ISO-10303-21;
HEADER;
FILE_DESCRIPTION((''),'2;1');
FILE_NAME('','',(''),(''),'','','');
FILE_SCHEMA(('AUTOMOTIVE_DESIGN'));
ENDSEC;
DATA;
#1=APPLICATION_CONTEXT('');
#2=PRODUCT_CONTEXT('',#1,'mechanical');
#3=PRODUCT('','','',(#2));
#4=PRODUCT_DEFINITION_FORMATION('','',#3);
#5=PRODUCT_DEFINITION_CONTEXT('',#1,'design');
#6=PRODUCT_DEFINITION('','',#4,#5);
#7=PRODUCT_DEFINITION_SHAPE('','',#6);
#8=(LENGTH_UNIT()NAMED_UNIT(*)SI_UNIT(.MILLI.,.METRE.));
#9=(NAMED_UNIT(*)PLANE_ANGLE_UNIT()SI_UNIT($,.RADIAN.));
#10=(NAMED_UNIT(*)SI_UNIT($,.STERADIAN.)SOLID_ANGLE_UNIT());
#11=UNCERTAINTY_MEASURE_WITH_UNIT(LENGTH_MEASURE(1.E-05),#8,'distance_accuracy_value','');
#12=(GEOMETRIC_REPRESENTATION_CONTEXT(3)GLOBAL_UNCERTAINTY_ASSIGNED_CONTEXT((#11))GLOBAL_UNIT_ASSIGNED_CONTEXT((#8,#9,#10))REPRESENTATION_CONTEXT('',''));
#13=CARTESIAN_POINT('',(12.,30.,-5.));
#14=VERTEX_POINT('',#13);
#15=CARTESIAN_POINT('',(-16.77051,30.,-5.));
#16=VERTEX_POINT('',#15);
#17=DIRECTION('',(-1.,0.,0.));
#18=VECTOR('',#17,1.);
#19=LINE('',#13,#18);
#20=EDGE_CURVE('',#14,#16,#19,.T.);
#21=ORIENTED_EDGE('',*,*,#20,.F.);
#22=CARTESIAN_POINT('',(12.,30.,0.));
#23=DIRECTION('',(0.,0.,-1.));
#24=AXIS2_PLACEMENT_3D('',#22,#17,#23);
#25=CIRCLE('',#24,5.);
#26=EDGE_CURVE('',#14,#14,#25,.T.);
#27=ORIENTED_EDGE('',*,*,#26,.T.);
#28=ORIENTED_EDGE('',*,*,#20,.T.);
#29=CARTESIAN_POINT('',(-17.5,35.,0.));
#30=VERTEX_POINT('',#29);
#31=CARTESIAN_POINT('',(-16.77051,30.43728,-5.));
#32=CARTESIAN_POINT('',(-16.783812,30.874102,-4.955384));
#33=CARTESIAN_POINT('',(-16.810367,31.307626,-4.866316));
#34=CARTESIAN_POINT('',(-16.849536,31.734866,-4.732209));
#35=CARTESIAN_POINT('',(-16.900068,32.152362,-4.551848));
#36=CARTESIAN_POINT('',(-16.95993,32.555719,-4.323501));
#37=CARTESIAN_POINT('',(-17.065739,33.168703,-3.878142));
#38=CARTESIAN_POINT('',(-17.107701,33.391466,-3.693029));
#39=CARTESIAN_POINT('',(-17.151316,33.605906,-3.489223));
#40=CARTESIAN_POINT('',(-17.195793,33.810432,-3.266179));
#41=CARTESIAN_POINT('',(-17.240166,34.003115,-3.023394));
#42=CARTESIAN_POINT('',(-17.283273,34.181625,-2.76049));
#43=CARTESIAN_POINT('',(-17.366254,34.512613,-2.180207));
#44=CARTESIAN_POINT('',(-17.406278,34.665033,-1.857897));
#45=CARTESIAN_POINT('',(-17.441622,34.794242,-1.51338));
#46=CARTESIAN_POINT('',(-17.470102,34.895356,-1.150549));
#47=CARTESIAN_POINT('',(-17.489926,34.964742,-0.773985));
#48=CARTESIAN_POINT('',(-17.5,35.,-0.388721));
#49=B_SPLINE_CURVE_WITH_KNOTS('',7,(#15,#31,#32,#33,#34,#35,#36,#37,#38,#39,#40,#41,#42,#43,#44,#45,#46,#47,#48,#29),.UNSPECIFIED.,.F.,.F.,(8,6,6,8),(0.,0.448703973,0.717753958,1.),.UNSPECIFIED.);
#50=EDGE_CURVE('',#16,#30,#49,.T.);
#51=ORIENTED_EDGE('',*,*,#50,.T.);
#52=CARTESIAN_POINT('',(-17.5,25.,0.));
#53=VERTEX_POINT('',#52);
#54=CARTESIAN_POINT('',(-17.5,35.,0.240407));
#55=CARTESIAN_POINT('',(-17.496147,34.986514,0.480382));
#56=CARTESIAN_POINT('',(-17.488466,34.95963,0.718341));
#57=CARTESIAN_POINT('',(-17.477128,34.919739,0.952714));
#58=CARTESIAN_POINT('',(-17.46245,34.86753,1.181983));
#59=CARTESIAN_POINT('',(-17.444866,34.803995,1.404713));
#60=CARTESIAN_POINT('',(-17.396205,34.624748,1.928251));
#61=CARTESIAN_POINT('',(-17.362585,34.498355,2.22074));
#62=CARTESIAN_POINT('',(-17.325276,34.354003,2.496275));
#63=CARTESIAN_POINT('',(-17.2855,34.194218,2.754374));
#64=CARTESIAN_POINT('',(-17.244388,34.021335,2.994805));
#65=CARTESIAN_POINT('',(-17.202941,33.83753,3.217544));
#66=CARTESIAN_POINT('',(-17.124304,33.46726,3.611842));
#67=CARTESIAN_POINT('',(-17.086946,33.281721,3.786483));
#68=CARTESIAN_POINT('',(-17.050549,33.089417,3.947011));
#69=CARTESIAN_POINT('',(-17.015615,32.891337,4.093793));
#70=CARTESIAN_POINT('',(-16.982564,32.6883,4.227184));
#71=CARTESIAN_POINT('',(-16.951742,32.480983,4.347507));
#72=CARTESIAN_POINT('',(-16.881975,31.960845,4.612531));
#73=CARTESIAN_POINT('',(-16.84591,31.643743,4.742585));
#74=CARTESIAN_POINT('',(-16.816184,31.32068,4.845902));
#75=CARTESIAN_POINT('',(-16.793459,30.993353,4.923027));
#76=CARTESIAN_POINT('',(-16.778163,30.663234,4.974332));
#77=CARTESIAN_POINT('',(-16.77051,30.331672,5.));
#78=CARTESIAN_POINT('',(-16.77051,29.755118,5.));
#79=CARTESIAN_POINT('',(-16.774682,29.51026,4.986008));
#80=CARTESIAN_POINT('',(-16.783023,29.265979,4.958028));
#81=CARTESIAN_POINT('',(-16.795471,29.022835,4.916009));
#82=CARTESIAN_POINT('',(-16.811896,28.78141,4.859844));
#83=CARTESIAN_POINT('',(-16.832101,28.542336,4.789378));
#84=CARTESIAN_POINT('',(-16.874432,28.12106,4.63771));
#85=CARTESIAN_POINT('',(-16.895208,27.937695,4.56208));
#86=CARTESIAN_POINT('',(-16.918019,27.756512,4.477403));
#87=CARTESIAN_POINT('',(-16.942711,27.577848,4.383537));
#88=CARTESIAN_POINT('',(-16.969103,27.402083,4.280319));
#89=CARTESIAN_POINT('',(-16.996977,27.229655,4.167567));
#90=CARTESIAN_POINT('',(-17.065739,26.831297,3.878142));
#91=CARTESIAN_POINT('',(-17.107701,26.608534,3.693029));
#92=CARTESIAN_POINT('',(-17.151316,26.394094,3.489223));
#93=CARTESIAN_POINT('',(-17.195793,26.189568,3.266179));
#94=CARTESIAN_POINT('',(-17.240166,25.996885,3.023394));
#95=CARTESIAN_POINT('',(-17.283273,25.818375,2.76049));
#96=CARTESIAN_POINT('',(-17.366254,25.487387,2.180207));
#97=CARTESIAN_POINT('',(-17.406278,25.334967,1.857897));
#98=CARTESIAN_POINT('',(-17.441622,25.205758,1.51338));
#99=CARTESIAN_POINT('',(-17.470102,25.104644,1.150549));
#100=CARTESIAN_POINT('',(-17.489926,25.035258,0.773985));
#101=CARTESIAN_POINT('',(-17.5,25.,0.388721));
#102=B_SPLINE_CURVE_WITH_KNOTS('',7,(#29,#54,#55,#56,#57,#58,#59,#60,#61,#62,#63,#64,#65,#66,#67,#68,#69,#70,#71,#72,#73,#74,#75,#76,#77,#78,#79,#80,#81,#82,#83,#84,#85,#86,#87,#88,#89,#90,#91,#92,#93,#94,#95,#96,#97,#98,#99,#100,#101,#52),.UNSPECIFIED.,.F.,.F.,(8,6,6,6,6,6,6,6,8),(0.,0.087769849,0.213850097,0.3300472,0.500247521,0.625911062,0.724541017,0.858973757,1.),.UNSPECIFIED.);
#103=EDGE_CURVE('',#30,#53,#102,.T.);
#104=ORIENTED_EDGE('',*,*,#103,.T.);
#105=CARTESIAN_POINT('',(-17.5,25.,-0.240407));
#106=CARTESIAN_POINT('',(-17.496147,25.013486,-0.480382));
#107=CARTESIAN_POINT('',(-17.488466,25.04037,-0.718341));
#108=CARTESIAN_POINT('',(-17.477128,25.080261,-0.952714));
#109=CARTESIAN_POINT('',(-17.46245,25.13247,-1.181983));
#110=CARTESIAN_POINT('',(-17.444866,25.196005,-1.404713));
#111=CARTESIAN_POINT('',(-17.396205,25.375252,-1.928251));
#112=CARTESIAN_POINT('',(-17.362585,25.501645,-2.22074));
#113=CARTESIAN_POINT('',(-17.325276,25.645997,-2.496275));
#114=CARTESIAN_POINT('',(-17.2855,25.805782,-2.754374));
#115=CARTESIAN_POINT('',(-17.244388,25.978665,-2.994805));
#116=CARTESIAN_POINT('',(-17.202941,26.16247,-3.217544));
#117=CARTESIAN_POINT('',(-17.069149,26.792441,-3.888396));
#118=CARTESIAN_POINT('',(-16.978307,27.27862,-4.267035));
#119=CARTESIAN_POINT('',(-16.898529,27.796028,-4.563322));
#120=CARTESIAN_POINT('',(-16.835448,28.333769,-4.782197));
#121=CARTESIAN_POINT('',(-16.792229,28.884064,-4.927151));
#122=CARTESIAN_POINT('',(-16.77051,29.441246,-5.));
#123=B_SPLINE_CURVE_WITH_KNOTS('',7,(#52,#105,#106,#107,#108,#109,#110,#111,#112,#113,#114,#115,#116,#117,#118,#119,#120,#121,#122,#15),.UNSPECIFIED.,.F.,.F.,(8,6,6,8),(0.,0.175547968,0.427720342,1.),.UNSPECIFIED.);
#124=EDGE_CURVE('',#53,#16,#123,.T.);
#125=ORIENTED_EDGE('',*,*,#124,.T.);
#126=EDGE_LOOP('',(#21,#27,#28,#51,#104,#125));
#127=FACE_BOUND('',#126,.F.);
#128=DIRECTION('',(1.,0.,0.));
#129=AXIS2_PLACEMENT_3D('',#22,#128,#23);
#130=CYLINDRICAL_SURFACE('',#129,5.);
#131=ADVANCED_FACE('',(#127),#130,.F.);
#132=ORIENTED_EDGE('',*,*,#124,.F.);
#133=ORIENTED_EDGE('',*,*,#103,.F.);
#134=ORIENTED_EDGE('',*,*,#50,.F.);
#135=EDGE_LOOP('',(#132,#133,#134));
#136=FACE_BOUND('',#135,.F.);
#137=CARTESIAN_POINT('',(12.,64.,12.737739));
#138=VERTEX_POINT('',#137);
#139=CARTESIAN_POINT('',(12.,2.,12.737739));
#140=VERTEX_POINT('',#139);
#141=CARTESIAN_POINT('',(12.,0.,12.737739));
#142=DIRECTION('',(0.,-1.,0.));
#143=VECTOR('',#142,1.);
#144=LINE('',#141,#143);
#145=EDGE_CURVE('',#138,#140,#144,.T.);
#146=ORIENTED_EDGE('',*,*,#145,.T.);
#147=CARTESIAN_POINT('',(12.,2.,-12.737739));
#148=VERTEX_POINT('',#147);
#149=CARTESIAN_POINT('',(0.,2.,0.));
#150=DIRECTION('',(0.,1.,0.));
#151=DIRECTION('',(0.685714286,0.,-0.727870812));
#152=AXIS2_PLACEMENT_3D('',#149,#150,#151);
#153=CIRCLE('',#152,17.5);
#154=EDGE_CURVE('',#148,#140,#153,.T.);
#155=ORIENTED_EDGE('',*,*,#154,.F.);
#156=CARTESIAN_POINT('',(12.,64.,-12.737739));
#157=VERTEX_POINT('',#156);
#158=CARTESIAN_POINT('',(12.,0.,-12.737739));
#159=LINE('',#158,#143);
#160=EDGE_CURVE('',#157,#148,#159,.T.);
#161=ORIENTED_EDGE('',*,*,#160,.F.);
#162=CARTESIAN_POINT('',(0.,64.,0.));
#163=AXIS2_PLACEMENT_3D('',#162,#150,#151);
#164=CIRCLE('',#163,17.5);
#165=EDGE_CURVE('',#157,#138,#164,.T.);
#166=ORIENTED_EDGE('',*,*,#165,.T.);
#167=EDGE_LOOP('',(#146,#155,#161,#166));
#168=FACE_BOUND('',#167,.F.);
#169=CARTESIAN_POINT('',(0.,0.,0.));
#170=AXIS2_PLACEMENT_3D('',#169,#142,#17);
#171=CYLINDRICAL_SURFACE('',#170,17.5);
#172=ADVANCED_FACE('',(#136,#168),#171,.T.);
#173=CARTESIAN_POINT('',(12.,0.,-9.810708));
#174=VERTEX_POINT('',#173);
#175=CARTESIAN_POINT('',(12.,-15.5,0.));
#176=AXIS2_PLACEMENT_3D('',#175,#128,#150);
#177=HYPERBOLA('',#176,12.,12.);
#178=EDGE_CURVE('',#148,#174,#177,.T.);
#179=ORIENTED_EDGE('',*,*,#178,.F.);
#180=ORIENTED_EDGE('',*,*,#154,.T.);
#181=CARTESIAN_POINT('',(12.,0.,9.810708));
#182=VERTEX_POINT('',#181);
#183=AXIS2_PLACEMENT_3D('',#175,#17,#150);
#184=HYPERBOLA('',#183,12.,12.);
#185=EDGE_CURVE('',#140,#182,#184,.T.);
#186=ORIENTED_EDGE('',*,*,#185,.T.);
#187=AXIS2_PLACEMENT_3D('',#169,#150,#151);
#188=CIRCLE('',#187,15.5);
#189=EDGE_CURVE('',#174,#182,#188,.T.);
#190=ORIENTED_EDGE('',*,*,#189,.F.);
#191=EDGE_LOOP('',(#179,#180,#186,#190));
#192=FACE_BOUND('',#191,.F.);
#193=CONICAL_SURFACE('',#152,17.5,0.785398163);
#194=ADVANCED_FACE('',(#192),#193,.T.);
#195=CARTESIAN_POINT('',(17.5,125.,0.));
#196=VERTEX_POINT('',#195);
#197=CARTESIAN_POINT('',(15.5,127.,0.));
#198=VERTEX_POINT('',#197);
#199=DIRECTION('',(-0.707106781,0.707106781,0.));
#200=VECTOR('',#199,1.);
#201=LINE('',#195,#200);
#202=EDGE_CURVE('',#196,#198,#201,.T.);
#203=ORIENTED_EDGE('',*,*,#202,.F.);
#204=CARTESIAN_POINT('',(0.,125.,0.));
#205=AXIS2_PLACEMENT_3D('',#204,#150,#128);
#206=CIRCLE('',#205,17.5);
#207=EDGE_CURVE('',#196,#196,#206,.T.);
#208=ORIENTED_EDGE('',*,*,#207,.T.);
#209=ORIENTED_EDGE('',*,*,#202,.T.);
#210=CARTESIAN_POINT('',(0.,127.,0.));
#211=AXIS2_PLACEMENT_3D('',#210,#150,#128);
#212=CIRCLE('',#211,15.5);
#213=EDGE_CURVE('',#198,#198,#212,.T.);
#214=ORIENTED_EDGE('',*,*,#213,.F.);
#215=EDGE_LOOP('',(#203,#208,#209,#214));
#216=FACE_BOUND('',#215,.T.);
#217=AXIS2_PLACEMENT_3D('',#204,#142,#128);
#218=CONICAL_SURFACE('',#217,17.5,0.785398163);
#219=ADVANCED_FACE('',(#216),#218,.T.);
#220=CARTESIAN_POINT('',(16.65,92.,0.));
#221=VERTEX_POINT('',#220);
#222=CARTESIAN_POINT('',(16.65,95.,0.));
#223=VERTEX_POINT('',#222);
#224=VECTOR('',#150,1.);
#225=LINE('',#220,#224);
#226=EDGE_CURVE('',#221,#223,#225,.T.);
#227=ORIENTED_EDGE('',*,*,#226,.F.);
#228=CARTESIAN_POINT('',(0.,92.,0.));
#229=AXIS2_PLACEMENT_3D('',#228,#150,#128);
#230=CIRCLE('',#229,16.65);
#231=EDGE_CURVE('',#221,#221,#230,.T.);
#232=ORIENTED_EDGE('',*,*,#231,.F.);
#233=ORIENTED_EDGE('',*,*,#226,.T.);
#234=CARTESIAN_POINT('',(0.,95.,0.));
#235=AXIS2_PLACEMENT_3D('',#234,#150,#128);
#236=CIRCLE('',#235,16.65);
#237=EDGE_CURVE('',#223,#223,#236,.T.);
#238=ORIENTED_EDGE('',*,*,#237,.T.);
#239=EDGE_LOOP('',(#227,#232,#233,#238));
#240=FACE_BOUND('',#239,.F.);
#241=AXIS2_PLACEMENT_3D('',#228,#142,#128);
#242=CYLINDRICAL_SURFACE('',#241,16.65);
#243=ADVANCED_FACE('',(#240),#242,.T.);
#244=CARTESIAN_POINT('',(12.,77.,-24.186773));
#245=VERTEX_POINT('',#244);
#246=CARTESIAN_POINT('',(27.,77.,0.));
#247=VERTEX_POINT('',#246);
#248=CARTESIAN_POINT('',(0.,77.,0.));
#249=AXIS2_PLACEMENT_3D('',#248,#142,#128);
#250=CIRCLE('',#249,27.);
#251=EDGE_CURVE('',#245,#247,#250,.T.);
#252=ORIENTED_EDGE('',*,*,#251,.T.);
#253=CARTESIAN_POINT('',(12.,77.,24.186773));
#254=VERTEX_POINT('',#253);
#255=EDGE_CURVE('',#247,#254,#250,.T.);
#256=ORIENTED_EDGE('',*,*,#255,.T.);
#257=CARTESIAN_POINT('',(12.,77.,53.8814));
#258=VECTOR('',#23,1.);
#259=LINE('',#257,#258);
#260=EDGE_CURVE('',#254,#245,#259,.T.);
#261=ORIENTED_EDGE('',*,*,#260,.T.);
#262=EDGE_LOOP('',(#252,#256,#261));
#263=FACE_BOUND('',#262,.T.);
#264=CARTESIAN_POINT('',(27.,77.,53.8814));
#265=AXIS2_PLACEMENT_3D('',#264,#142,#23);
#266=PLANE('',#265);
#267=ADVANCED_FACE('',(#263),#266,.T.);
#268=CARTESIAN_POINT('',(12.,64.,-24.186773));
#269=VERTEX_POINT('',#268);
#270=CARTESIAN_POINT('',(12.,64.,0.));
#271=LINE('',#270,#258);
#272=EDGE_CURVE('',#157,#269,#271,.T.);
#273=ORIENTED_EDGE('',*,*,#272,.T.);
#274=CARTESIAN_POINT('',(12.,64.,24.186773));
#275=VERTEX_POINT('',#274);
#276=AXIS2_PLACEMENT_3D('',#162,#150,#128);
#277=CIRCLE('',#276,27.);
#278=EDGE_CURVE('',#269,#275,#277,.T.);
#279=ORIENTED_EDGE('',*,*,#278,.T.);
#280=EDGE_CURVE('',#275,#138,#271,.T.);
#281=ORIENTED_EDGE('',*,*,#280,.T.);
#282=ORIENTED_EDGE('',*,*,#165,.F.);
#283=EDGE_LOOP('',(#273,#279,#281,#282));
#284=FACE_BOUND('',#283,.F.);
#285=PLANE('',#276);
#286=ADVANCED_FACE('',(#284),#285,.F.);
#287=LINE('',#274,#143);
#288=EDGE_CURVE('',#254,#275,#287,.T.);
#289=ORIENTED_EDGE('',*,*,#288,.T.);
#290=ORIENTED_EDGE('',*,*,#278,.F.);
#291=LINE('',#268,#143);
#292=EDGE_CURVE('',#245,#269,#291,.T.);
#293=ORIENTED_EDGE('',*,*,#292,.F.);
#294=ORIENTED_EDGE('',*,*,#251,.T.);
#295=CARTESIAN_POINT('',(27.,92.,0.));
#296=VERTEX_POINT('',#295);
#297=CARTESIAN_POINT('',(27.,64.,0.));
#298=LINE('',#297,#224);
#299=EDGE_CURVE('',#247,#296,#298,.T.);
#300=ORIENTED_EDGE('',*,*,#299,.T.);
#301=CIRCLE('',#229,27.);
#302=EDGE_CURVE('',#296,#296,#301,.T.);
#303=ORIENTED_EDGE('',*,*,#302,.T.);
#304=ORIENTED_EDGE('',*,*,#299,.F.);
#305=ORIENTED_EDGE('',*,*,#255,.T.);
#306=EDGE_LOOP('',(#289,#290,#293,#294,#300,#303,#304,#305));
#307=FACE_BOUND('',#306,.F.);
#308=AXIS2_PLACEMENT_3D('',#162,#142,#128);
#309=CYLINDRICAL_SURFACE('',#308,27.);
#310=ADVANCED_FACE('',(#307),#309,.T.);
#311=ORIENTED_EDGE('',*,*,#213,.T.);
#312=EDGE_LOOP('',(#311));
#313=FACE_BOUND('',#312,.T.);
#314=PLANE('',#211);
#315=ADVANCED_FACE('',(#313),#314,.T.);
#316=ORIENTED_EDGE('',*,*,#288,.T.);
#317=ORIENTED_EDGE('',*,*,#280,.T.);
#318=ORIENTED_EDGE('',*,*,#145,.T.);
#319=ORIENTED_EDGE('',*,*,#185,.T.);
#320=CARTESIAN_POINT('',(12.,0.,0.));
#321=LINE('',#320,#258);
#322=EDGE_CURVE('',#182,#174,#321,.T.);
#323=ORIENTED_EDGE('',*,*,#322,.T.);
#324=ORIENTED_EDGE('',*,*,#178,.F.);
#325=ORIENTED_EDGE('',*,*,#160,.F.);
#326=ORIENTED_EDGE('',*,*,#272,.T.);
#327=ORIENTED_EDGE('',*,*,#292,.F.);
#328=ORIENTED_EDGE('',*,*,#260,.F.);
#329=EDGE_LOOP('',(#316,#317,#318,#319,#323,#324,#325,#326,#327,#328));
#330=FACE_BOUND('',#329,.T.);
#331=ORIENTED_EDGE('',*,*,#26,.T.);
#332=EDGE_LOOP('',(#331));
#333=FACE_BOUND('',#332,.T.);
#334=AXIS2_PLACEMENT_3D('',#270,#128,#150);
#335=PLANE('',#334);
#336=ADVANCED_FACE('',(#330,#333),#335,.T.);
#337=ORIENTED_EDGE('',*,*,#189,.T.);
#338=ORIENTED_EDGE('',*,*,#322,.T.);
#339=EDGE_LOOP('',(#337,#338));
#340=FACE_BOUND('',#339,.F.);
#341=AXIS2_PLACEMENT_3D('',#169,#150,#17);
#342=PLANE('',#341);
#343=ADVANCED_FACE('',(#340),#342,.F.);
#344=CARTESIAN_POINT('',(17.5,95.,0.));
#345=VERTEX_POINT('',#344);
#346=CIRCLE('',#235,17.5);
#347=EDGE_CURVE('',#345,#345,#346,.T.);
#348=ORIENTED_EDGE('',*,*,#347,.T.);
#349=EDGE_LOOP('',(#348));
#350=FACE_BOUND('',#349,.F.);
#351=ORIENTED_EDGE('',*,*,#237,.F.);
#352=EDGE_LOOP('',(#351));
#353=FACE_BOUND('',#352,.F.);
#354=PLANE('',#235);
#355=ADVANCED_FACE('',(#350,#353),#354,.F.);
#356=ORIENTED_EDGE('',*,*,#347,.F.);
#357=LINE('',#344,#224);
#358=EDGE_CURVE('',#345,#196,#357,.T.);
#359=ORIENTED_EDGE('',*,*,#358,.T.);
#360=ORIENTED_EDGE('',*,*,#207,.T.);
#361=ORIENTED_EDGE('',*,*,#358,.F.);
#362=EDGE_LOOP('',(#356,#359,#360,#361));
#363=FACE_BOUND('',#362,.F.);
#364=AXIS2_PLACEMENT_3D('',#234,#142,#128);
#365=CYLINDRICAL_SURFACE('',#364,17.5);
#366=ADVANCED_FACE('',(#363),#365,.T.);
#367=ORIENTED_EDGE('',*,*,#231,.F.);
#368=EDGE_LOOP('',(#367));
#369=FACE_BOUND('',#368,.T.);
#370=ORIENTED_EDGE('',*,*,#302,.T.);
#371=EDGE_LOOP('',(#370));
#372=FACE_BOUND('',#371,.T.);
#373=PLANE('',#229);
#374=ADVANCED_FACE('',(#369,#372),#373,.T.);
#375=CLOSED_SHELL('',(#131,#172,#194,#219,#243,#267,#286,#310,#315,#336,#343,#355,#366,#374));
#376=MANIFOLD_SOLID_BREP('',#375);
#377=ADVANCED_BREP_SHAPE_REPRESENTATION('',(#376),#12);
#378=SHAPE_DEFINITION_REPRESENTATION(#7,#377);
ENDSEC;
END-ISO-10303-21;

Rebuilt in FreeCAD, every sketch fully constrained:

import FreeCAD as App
import Part
import Sketcher
Q = App.Units.Quantity


def edges_at(feature, points):
    """Names of the edges that pass closest to the given points."""
    edges = feature.Shape.Edges
    near = lambda p: min(range(len(edges)), key=lambda i: edges[i].distToShape(Part.Vertex(*p))[0])
    return sorted({f"Edge{near(p) + 1}" for p in points})


def add_polygon(sketch, points):
    """Adds a closed chain of lines whose ends are joined by coincident constraints."""
    first, n = sketch.GeometryCount, len(points)
    for a, b in zip(points, points[1:] + points[:1]):
        sketch.addGeometry(Part.LineSegment(App.Vector(*a, 0), App.Vector(*b, 0)), False)
    for i in range(n):
        sketch.addConstraint(Sketcher.Constraint("Coincident", first + i, 2, first + (i + 1) % n, 1))

doc = App.newDocument("Part")
body = doc.addObject("PartDesign::Body", "Body")

# Sketch on XZ plane
sketch1 = doc.addObject("Sketcher::SketchObject", "Sketch")
body.addObject(sketch1)
sketch1.AttachmentSupport = (doc.XZ_Plane, [""])
sketch1.MapMode = "FlatFace"
sketch1.addGeometry(Part.Circle(App.Vector(0, 0, 0), App.Vector(0, 0, 1), 18), False)
sketch1.addConstraint(Sketcher.Constraint("Coincident", 0, 3, -1, 1))
sketch1.addConstraint(Sketcher.Constraint("Diameter", 0, Q("35 mm")))
pad1 = doc.addObject("PartDesign::Pad", "Pad")
body.addObject(pad1)
pad1.Profile = sketch1
pad1.Length = 64
pad1.Reversed = True

# Sketch on XZ plane
sketch2 = doc.addObject("Sketcher::SketchObject", "Sketch001")
body.addObject(sketch2)
sketch2.AttachmentSupport = (doc.XZ_Plane, [""])
sketch2.MapMode = "FlatFace"
sketch2.AttachmentOffset = App.Placement(App.Vector(0, 0, -64), App.Rotation())
sketch2.addGeometry(Part.Circle(App.Vector(0, 0, 0), App.Vector(0, 0, 1), 27), False)
sketch2.addConstraint(Sketcher.Constraint("Coincident", 0, 3, -1, 1))
sketch2.addConstraint(Sketcher.Constraint("Diameter", 0, Q("54 mm")))
pad2 = doc.addObject("PartDesign::Pad", "Pad001")
body.addObject(pad2)
pad2.Profile = sketch2
pad2.Length = 28
pad2.Reversed = True

# Sketch on XZ plane
sketch3 = doc.addObject("Sketcher::SketchObject", "Sketch002")
body.addObject(sketch3)
sketch3.AttachmentSupport = (doc.XZ_Plane, [""])
sketch3.MapMode = "FlatFace"
sketch3.AttachmentOffset = App.Placement(App.Vector(0, 0, -92), App.Rotation())
sketch3.addGeometry(Part.Circle(App.Vector(0, 0, 0), App.Vector(0, 0, 1), 17), False)
sketch3.addConstraint(Sketcher.Constraint("Coincident", 0, 3, -1, 1))
sketch3.addConstraint(Sketcher.Constraint("Diameter", 0, Q("33.3 mm")))
pad3 = doc.addObject("PartDesign::Pad", "Pad002")
body.addObject(pad3)
pad3.Profile = sketch3
pad3.Length = 3
pad3.Reversed = True

# Sketch on XZ plane
sketch4 = doc.addObject("Sketcher::SketchObject", "Sketch003")
body.addObject(sketch4)
sketch4.AttachmentSupport = (doc.XZ_Plane, [""])
sketch4.MapMode = "FlatFace"
sketch4.AttachmentOffset = App.Placement(App.Vector(0, 0, -95), App.Rotation())
sketch4.addGeometry(Part.Circle(App.Vector(0, 0, 0), App.Vector(0, 0, 1), 18), False)
sketch4.addConstraint(Sketcher.Constraint("Coincident", 0, 3, -1, 1))
sketch4.addConstraint(Sketcher.Constraint("Diameter", 0, Q("35 mm")))
pad4 = doc.addObject("PartDesign::Pad", "Pad003")
body.addObject(pad4)
pad4.Profile = sketch4
pad4.Length = 32
pad4.Reversed = True

# Sketch on YZ plane
sketch5 = doc.addObject("Sketcher::SketchObject", "Sketch004")
body.addObject(sketch5)
sketch5.AttachmentSupport = (doc.YZ_Plane, [""])
sketch5.MapMode = "FlatFace"
sketch5.AttachmentOffset = App.Placement(App.Vector(0, 0, 27), App.Rotation())
add_polygon(sketch5, [(-19, -51), (77, -51), (77, 54), (-19, 54)])  # lines 0-3
sketch5.addConstraint(Sketcher.Constraint("Horizontal", 0))
sketch5.addConstraint(Sketcher.Constraint("Vertical", 1))
sketch5.addConstraint(Sketcher.Constraint("Horizontal", 2))
sketch5.addConstraint(Sketcher.Constraint("Vertical", 3))
sketch5.addConstraint(Sketcher.Constraint("DistanceX", -1, 1, 0, 2, Q("77 mm")))
sketch5.addConstraint(Sketcher.Constraint("DistanceX", 0, 1, 0, 2, Q("95.5223 mm")))
sketch5.addConstraint(Sketcher.Constraint("DistanceY", 1, 1, 1, 2, Q("104.4972 mm")))
sketch5.addConstraint(Sketcher.Constraint("DistanceY", 0, 2, -1, 1, Q("50.6158 mm")))
pocket1 = doc.addObject("PartDesign::Pocket", "Pocket")
body.addObject(pocket1)
pocket1.Profile = sketch5
pocket1.Length = 15

# Sketch on YZ plane
sketch6 = doc.addObject("Sketcher::SketchObject", "Sketch005")
body.addObject(sketch6)
sketch6.AttachmentSupport = (doc.YZ_Plane, [""])
sketch6.MapMode = "FlatFace"
sketch6.AttachmentOffset = App.Placement(App.Vector(0, 0, 12), App.Rotation())
sketch6.addGeometry(Part.Circle(App.Vector(30, 0, 0), App.Vector(0, 0, 1), 5), False)
sketch6.addConstraint(Sketcher.Constraint("PointOnObject", 0, 3, -1))
sketch6.addConstraint(Sketcher.Constraint("Diameter", 0, Q("10 mm")))
sketch6.addConstraint(Sketcher.Constraint("DistanceX", -1, 1, 0, 3, Q("30 mm")))
pocket2 = doc.addObject("PartDesign::Pocket", "Pocket001")
body.addObject(pocket2)
pocket2.Profile = sketch6
pocket2.Type = "ThroughAll"
doc.recompute()

chamfer = doc.addObject("PartDesign::Chamfer", "Chamfer")
body.addObject(chamfer)
chamfer.Base = (pocket2, edges_at(pocket2, [(-17.5, 0, 0), (-17.5, 127, 0)]))
chamfer.Size = 2

doc.recompute()
